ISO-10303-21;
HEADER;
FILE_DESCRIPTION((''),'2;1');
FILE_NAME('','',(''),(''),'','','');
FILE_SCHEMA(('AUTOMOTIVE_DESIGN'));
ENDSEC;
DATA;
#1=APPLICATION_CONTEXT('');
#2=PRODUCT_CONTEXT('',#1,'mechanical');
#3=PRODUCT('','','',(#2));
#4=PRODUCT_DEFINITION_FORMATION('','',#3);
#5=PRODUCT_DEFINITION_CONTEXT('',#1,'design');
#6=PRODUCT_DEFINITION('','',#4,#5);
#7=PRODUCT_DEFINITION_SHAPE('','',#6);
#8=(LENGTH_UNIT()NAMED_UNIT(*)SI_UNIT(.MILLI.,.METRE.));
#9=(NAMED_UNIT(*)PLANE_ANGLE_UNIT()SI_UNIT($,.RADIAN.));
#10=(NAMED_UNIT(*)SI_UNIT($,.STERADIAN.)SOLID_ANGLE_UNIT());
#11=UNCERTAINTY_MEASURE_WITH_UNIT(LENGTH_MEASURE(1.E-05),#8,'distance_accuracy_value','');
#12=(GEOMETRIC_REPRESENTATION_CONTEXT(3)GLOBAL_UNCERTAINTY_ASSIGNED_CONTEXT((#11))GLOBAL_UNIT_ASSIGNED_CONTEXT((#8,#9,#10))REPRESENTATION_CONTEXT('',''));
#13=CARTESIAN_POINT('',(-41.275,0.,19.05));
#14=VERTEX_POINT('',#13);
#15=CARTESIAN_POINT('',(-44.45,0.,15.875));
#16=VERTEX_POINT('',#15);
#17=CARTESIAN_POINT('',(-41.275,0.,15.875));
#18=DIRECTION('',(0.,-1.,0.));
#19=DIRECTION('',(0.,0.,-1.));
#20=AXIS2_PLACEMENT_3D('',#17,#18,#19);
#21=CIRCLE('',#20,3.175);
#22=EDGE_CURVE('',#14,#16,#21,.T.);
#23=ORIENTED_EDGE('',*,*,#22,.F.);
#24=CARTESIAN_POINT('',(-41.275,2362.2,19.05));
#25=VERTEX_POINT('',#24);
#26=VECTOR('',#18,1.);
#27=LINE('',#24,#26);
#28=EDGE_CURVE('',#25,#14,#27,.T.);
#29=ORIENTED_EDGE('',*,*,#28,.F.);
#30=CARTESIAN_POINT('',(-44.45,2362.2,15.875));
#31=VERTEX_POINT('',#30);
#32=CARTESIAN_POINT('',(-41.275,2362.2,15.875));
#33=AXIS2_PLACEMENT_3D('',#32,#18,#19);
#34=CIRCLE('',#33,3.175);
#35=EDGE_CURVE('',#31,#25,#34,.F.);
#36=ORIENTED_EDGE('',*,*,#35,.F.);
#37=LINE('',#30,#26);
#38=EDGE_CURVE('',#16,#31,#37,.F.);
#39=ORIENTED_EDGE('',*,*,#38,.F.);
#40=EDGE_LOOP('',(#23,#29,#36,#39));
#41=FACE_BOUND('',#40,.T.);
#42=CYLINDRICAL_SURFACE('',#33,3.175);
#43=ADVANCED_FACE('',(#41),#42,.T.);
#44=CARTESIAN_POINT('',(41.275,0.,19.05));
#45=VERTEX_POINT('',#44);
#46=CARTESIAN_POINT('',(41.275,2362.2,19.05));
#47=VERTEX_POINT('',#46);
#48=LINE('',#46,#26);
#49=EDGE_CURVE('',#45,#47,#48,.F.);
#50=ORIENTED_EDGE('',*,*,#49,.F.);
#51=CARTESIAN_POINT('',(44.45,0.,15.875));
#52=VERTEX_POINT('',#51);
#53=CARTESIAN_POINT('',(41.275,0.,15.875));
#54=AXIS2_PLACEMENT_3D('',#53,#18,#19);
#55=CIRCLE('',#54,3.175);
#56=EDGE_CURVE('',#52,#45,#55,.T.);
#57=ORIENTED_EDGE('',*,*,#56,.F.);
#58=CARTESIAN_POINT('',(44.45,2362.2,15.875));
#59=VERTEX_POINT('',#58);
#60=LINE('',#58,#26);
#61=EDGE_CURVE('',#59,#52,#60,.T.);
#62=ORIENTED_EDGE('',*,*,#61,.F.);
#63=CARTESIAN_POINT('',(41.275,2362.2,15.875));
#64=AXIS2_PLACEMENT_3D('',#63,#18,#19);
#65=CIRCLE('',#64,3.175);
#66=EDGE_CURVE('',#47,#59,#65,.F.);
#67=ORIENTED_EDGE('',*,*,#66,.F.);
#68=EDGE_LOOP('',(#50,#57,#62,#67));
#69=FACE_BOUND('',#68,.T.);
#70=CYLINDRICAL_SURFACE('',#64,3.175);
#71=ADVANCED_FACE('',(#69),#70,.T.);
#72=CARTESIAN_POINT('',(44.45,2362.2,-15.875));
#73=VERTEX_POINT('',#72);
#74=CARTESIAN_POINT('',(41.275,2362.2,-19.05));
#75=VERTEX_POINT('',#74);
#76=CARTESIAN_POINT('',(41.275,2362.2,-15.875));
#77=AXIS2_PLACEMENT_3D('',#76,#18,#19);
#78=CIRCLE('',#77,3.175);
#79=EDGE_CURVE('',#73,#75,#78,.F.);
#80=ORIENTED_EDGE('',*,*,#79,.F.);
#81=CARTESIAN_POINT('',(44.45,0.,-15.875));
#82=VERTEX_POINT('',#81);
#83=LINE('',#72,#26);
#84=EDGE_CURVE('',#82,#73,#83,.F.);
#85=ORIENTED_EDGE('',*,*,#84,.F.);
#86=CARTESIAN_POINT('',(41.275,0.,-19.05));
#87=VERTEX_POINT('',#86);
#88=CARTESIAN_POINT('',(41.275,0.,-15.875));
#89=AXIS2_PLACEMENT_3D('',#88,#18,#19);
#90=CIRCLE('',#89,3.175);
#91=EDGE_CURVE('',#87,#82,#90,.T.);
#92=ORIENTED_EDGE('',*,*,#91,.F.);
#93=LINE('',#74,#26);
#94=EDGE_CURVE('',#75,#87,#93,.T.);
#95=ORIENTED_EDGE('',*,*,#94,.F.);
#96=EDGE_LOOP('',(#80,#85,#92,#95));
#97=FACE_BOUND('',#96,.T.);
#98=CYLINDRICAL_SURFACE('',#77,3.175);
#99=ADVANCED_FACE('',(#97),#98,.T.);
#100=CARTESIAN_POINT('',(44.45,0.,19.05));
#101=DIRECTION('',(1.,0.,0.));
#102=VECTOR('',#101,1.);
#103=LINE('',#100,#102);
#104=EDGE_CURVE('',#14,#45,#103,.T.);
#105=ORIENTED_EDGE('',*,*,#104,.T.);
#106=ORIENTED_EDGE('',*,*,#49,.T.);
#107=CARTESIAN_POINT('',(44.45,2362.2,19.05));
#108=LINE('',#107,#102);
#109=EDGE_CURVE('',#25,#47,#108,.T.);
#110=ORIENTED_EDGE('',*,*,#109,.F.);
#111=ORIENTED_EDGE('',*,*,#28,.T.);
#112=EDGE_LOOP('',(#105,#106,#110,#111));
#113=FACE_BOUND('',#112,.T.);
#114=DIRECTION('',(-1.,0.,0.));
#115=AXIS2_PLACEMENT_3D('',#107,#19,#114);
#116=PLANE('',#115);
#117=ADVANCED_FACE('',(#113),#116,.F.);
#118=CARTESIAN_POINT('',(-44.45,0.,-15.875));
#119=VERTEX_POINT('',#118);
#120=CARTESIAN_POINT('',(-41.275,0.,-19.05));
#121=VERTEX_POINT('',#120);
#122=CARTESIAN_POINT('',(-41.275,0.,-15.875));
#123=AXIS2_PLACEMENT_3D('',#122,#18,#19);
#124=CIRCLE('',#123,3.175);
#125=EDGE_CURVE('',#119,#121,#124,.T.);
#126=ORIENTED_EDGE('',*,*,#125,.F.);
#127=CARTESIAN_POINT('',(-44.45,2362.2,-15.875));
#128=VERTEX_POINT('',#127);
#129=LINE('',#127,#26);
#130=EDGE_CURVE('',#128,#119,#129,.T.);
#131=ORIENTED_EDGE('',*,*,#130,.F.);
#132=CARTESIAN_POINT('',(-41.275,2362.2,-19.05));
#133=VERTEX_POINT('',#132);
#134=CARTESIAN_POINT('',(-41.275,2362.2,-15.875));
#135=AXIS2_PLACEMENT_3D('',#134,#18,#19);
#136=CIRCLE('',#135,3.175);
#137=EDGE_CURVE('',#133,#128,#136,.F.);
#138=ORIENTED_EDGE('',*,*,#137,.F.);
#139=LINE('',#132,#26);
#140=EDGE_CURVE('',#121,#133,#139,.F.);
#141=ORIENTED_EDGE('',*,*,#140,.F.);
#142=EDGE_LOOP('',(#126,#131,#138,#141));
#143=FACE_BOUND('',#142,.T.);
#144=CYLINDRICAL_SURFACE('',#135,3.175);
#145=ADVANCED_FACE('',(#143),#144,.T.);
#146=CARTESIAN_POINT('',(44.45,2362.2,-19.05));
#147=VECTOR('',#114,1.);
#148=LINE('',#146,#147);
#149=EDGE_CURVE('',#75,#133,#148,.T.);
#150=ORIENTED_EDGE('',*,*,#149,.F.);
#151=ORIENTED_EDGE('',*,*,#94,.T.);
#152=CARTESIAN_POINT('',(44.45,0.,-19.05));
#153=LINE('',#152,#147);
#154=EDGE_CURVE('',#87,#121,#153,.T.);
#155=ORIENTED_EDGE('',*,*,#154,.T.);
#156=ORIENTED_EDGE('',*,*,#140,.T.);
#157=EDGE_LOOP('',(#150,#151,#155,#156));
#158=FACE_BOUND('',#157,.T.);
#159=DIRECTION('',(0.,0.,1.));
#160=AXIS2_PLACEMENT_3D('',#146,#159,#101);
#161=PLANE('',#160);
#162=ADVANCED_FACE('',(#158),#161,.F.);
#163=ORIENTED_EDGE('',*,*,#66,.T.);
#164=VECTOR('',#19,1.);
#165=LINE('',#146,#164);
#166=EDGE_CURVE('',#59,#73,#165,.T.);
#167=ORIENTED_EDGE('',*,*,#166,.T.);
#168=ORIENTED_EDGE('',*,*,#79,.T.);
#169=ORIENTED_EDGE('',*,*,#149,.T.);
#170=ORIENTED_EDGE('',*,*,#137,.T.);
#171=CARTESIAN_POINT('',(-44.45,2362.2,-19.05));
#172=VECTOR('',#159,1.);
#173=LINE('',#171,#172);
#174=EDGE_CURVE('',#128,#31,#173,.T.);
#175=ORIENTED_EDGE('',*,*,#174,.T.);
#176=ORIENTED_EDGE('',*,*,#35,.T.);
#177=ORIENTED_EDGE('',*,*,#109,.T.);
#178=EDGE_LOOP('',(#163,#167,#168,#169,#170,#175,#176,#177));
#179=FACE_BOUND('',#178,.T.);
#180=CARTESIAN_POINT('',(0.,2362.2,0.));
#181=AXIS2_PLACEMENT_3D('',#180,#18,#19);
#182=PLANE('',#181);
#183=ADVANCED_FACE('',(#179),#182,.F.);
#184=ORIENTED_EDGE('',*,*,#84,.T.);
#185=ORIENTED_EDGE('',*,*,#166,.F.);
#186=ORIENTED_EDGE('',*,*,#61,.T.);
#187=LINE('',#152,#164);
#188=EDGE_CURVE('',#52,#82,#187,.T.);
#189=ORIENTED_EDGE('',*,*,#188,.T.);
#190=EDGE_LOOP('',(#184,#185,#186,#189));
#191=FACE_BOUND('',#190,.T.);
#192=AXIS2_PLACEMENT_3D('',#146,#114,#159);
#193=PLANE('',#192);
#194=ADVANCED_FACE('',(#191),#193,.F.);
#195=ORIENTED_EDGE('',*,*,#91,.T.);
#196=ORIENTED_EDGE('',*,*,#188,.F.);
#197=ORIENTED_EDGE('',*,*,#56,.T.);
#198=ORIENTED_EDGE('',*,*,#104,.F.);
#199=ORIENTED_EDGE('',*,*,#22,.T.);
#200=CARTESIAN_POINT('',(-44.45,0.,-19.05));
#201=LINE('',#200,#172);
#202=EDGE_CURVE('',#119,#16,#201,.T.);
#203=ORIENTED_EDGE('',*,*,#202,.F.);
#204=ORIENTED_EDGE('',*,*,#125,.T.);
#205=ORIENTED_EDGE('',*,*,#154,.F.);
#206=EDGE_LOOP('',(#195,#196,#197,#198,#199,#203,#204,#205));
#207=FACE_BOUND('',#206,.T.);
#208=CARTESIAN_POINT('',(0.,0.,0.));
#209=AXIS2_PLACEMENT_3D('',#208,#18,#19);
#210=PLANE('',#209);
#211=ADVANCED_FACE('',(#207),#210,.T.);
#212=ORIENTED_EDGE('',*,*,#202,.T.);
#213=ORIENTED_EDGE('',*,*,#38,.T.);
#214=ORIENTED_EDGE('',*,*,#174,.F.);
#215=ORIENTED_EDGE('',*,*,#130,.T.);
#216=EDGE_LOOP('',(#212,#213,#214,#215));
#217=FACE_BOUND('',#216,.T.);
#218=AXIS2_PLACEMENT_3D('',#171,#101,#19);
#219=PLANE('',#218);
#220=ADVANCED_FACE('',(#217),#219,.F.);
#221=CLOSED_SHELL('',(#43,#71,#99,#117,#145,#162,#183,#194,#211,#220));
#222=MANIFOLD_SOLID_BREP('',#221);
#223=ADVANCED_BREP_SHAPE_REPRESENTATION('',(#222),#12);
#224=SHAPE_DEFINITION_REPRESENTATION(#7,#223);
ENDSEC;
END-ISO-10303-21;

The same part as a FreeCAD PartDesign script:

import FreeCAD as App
import Part
import Sketcher
Q = App.Units.Quantity


def edges_at(feature, points):
    """Names of the edges that pass closest to the given points."""
    edges = feature.Shape.Edges
    near = lambda p: min(range(len(edges)), key=lambda i: edges[i].distToShape(Part.Vertex(*p))[0])
    return sorted({f"Edge{near(p) + 1}" for p in points})

doc = App.newDocument("Part")
body = doc.addObject("PartDesign::Body", "Body")

sketch1 = doc.addObject("Sketcher::SketchObject", "Sketch")
body.addObject(sketch1)
sketch1.AttachmentSupport = (doc.XZ_Plane, [""])
sketch1.MapMode = "FlatFace"
sketch1.addGeometry(Part.LineSegment(App.Vector(-44, -19, 0), App.Vector(-44, 19, 0)), False)
sketch1.addGeometry(Part.LineSegment(App.Vector(-44, 19, 0), App.Vector(44, 19, 0)), False)
sketch1.addGeometry(Part.LineSegment(App.Vector(44, 19, 0), App.Vector(44, -19, 0)), False)
sketch1.addGeometry(Part.LineSegment(App.Vector(44, -19, 0), App.Vector(-44, -19, 0)), False)
sketch1.addConstraint(Sketcher.Constraint("Coincident", 0, 2, 1, 1))
sketch1.addConstraint(Sketcher.Constraint("Coincident", 1, 2, 2, 1))
sketch1.addConstraint(Sketcher.Constraint("Coincident", 2, 2, 3, 1))
sketch1.addConstraint(Sketcher.Constraint("Coincident", 3, 2, 0, 1))
sketch1.addConstraint(Sketcher.Constraint("Vertical", 0))
sketch1.addConstraint(Sketcher.Constraint("Horizontal", 1))
sketch1.addConstraint(Sketcher.Constraint("Vertical", 2))
sketch1.addConstraint(Sketcher.Constraint("Horizontal", 3))
sketch1.addConstraint(Sketcher.Constraint("Symmetric", 0, 2, 2, 2, -1, 1))
sketch1.addConstraint(Sketcher.Constraint("DistanceX", 1, 1, 1, 2, Q("3.5 in")))
sketch1.addConstraint(Sketcher.Constraint("DistanceY", 0, 1, 0, 2, Q("1.5 in")))
pad1 = doc.addObject("PartDesign::Pad", "Pad")
body.addObject(pad1)
pad1.Profile = sketch1
pad1.Length = Q("93 in")
pad1.Reversed = True
doc.recompute()

fillet = doc.addObject("PartDesign::Fillet", "Fillet")
body.addObject(fillet)
fillet.Base = (pad1, edges_at(pad1, [
    (-44.45, 1181.1, -19.05),
    (44.45, 1181.1, -19.05),
    (44.45, 1181.1, 19.05),
    (-44.45, 1181.1, 19.05),
]))
fillet.Radius = Q("0.125 in")

doc.recompute()
